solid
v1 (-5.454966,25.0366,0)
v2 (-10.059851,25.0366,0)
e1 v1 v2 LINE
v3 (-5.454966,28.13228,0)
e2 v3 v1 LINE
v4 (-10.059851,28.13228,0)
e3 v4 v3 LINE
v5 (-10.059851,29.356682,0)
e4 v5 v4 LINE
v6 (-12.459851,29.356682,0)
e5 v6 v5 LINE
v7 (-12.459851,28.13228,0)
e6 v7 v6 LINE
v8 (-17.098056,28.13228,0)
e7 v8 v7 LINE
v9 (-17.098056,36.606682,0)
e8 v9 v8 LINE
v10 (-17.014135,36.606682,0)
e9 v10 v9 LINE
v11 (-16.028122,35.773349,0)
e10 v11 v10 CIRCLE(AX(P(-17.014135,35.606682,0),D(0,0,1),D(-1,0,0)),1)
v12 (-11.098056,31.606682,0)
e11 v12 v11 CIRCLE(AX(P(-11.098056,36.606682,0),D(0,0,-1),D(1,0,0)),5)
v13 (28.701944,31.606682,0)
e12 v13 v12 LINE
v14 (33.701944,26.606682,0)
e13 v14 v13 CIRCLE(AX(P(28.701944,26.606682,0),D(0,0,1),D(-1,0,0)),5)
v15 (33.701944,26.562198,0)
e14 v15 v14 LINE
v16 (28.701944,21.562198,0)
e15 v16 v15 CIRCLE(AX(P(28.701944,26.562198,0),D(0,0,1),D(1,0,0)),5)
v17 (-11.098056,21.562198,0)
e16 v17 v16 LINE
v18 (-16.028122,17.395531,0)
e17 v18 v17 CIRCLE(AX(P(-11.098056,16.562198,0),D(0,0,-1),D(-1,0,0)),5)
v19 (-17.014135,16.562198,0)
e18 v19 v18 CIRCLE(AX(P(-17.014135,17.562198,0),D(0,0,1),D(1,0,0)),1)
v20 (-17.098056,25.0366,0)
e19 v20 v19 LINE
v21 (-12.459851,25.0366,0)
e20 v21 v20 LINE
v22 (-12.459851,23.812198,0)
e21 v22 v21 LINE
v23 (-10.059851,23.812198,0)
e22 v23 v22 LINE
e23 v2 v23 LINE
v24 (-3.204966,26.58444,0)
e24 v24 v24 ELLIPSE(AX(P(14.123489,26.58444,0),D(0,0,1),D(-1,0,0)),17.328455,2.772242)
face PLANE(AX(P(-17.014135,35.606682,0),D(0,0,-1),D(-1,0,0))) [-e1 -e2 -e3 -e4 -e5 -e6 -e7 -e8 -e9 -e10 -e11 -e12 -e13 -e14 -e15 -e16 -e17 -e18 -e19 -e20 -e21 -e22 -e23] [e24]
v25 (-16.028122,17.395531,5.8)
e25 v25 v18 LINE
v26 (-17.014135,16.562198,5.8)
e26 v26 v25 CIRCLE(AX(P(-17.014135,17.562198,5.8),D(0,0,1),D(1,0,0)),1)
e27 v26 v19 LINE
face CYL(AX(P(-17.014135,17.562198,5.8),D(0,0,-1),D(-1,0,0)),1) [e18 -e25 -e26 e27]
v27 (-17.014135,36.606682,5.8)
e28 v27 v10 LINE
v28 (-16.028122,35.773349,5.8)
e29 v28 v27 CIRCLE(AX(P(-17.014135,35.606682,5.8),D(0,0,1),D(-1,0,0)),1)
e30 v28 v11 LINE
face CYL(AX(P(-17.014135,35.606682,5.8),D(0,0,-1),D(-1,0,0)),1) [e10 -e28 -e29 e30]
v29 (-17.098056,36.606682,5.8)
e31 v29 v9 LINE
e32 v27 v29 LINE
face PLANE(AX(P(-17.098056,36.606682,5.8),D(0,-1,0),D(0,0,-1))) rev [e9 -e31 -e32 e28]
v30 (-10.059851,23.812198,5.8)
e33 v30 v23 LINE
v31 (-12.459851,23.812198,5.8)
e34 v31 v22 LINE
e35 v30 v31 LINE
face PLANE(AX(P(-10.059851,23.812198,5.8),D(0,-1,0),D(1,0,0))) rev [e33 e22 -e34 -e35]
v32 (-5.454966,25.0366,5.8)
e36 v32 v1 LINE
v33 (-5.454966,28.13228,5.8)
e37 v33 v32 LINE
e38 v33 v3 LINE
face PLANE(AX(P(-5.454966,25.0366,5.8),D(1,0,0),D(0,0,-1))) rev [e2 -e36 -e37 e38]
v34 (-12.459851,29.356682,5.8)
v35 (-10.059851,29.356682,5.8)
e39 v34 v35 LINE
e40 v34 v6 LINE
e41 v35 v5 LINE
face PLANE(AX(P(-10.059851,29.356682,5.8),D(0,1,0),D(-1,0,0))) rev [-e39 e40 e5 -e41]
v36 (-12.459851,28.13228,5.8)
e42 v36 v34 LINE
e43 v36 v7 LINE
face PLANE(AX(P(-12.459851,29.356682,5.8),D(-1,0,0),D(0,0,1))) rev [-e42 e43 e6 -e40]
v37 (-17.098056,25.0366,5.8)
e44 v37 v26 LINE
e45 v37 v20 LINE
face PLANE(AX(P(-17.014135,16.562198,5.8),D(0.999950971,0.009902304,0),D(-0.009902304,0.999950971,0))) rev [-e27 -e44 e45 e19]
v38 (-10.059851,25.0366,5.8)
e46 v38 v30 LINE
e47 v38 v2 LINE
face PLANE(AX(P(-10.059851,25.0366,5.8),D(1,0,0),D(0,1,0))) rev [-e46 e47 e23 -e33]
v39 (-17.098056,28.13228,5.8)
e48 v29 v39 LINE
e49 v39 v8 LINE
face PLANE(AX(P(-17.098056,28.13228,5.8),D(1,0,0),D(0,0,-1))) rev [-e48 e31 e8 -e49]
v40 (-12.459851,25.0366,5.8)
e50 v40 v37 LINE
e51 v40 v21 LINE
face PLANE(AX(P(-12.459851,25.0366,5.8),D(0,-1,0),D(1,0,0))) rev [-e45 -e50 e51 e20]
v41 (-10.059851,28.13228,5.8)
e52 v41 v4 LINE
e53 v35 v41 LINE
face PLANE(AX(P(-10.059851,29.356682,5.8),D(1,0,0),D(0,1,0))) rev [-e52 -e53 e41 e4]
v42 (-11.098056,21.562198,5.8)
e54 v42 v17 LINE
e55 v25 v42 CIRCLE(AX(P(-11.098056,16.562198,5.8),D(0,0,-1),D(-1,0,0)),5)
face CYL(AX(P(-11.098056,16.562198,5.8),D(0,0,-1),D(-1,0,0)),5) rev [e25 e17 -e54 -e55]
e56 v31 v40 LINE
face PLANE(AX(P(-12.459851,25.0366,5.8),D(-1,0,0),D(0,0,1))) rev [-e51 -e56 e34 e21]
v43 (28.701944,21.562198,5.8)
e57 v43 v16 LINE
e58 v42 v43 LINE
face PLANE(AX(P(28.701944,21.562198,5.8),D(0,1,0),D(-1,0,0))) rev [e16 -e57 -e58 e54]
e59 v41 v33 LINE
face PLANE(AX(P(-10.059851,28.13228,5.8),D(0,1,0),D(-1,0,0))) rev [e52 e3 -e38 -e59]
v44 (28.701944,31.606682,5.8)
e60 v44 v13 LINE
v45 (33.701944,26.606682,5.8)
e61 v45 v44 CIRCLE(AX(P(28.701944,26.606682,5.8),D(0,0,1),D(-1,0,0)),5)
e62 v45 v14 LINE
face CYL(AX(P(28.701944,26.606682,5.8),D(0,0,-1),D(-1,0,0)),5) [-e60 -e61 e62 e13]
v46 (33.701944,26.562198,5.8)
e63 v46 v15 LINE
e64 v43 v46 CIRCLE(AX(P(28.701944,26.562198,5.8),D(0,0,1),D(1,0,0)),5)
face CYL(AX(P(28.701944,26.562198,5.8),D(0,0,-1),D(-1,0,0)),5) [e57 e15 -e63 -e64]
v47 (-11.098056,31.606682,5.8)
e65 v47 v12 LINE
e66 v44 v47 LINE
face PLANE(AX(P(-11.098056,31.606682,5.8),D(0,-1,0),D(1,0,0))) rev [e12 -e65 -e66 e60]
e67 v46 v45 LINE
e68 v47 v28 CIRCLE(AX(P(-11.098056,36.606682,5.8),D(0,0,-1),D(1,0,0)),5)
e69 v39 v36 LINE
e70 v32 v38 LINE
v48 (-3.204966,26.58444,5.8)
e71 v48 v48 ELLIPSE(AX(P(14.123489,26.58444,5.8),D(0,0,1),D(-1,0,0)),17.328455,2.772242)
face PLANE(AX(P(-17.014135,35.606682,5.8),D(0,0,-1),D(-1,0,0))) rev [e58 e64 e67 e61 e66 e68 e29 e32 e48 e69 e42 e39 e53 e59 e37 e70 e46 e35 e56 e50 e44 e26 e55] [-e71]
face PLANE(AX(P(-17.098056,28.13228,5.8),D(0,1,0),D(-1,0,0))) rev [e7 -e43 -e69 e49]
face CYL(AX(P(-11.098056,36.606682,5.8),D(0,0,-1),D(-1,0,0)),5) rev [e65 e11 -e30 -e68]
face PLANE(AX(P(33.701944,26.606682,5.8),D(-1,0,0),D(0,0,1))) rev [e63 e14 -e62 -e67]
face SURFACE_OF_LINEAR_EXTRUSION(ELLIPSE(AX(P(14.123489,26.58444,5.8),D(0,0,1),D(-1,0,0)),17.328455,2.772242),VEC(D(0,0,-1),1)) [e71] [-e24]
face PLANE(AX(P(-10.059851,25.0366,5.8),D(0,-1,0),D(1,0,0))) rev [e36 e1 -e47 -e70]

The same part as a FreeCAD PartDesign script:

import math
import FreeCAD as App
import Part
import Sketcher
Q = App.Units.Quantity

doc = App.newDocument("Part")
body = doc.addObject("PartDesign::Body", "Body")

sketch1 = doc.addObject("Sketcher::SketchObject", "Sketch")
body.addObject(sketch1)
sketch1.AttachmentSupport = (doc.XY_Plane, [""])
sketch1.MapMode = "FlatFace"
sketch1.addGeometry([
    Part.LineSegment(App.Vector(-12.459851, 29.356682, 0), App.Vector(-10.059851, 29.356682, 0)),
    Part.LineSegment(App.Vector(-10.059851, 29.356682, 0), App.Vector(-10.059851, 28.13228, 0)),
    Part.LineSegment(App.Vector(-10.059851, 28.13228, 0), App.Vector(-5.454966, 28.13228, 0)),
    Part.LineSegment(App.Vector(-5.454966, 28.13228, 0), App.Vector(-5.454966, 25.0366, 0)),
    Part.LineSegment(App.Vector(-5.454966, 25.0366, 0), App.Vector(-10.059851, 25.0366, 0)),
    Part.LineSegment(App.Vector(-10.059851, 25.0366, 0), App.Vector(-10.059851, 23.812198, 0)),
    Part.LineSegment(App.Vector(-10.059851, 23.812198, 0), App.Vector(-12.459851, 23.812198, 0)),
    Part.LineSegment(App.Vector(-12.459851, 23.812198, 0), App.Vector(-12.459851, 25.0366, 0)),
    Part.LineSegment(App.Vector(-12.459851, 25.0366, 0), App.Vector(-17.098056, 25.0366, 0)),
    Part.LineSegment(App.Vector(-17.098056, 25.0366, 0), App.Vector(-17.014135, 16.562198, 0)),
    Part.ArcOfCircle(Part.Circle(App.Vector(-17.014135, 17.562198, 0), App.Vector(0, 0, 1), 1), math.radians(-90), math.radians(-9.594068)),
    Part.ArcOfCircle(Part.Circle(App.Vector(-11.098056, 16.562198, 0), App.Vector(0, 0, 1), 5), math.radians(90), math.radians(170.405932)),
    Part.LineSegment(App.Vector(-11.098056, 21.562198, 0), App.Vector(28.701944, 21.562198, 0)),
    Part.ArcOfCircle(Part.Circle(App.Vector(28.701944, 26.562198, 0), App.Vector(0, 0, 1), 5), math.radians(-90), math.radians(0)),
    Part.LineSegment(App.Vector(33.701944, 26.562198, 0), App.Vector(33.701944, 26.606682, 0)),
    Part.ArcOfCircle(Part.Circle(App.Vector(28.701944, 26.606682, 0), App.Vector(0, 0, 1), 5), math.radians(0), math.radians(90)),
    Part.LineSegment(App.Vector(28.701944, 31.606682, 0), App.Vector(-11.098056, 31.606682, 0)),
    Part.ArcOfCircle(Part.Circle(App.Vector(-11.098056, 36.606682, 0), App.Vector(0, 0, 1), 5), math.radians(-170.405932), math.radians(-90)),
    Part.ArcOfCircle(Part.Circle(App.Vector(-17.014135, 35.606682, 0), App.Vector(0, 0, 1), 1), math.radians(9.594068), math.radians(90)),
    Part.LineSegment(App.Vector(-17.014135, 36.606682, 0), App.Vector(-17.098056, 36.606682, 0)),
    Part.LineSegment(App.Vector(-17.098056, 36.606682, 0), App.Vector(-17.098056, 28.13228, 0)),
    Part.LineSegment(App.Vector(-17.098056, 28.13228, 0), App.Vector(-12.459851, 28.13228, 0)),
    Part.LineSegment(App.Vector(-12.459851, 28.13228, 0), App.Vector(-12.459851, 29.356682, 0)),
    Part.Ellipse(App.Vector(-3.204966, 26.58444, 0), App.Vector(14.123489, 23.812198, 0), App.Vector(14.123489, 26.58444, 0)),
], False)
sketch1.addConstraint([
    Sketcher.Constraint("Block", 23),
    Sketcher.Constraint("Coincident", 0, 2, 1, 1),
    Sketcher.Constraint("Coincident", 1, 2, 2, 1),
    Sketcher.Constraint("Coincident", 2, 2, 3, 1),
    Sketcher.Constraint("Coincident", 3, 2, 4, 1),
    Sketcher.Constraint("Coincident", 4, 2, 5, 1),
    Sketcher.Constraint("Coincident", 5, 2, 6, 1),
    Sketcher.Constraint("Coincident", 6, 2, 7, 1),
    Sketcher.Constraint("Coincident", 7, 2, 8, 1),
    Sketcher.Constraint("Coincident", 8, 2, 9, 1),
    Sketcher.Constraint("Coincident", 9, 2, 10, 1),
    Sketcher.Constraint("Tangent", 10, 2, 11, 2),
    Sketcher.Constraint("Tangent", 11, 1, 12, 1),
    Sketcher.Constraint("Tangent", 12, 2, 13, 1),
    Sketcher.Constraint("Tangent", 13, 2, 14, 1),
    Sketcher.Constraint("Tangent", 14, 2, 15, 1),
    Sketcher.Constraint("Tangent", 15, 2, 16, 1),
    Sketcher.Constraint("Tangent", 16, 2, 17, 2),
    Sketcher.Constraint("Tangent", 17, 1, 18, 1),
    Sketcher.Constraint("Tangent", 18, 2, 19, 1),
    Sketcher.Constraint("Coincident", 19, 2, 20, 1),
    Sketcher.Constraint("Coincident", 20, 2, 21, 1),
    Sketcher.Constraint("Coincident", 21, 2, 22, 1),
    Sketcher.Constraint("Coincident", 22, 2, 0, 1),
    Sketcher.Constraint("Horizontal", 0),
    Sketcher.Constraint("Vertical", 1),
    Sketcher.Constraint("Horizontal", 2),
    Sketcher.Constraint("Vertical", 3),
    Sketcher.Constraint("Horizontal", 4),
    Sketcher.Constraint("Vertical", 5),
    Sketcher.Constraint("Horizontal", 6),
    Sketcher.Constraint("Vertical", 7),
    Sketcher.Constraint("Horizontal", 8),
    Sketcher.Constraint("Horizontal", 12),
    Sketcher.Constraint("Vertical", 14),
    Sketcher.Constraint("Horizontal", 16),
    Sketcher.Constraint("Horizontal", 19),
    Sketcher.Constraint("Vertical", 20),
    Sketcher.Constraint("Horizontal", 21),
    Sketcher.Constraint("Vertical", 22),
    Sketcher.Constraint("Equal", 11, 13),
    Sketcher.Constraint("Equal", 13, 15),
    Sketcher.Constraint("Equal", 15, 17),
    Sketcher.Constraint("Equal", 10, 18),
    Sketcher.Constraint("Horizontal", 4, 2, 7, 2),
    Sketcher.Constraint("Horizontal", 11, 3, 9, 2),
    Sketcher.Constraint("Horizontal", 17, 3, 18, 2),
    Sketcher.Constraint("Horizontal", 2, 2, 20, 2),
    Sketcher.Constraint("Vertical", 11, 3, 17, 3),
    Sketcher.Constraint("Vertical", 1, 2, 4, 2),
    Sketcher.Constraint("Vertical", 18, 3, 9, 2),
    Sketcher.Constraint("Vertical", 8, 2, 19, 2),
    Sketcher.Constraint("Vertical", 7, 2, 21, 2),
    Sketcher.Constraint("Equal", 1, 5),
    Sketcher.Constraint("Radius", 10, Q("1 mm")),
    Sketcher.Constraint("Radius", 11, Q("5 mm")),
    Sketcher.Constraint("DistanceX", 0, 1, 0, 2, Q("2.4 mm")),
    Sketcher.Constraint("DistanceX", 12, 1, 12, 2, Q("39.8 mm")),
    Sketcher.Constraint("DistanceX", 19, 2, 17, 3, Q("6 mm")),
    Sketcher.Constraint("DistanceY", 0, 2, 17, 3, Q("7.25 mm")),
    Sketcher.Constraint("DistanceY", 9, 2, 6, 2, Q("7.25 mm")),
    Sketcher.Constraint("DistanceY", 3, 2, 3, 1, Q("3.09568 mm")),
    Sketcher.Constraint("DistanceY", -1, 1, 10, 3, Q("17.562198 mm")),
    Sketcher.Constraint("DistanceY", -1, 1, 3, 2, Q("25.0366 mm")),
    Sketcher.Constraint("DistanceX", 2, 1, 2, 2, Q("4.604885 mm")),
    Sketcher.Constraint("DistanceX", 8, 2, 8, 1, Q("4.638205 mm")),
    Sketcher.Constraint("DistanceX", 0, 2, -1, 1, Q("10.059851 mm")),
])
pad1 = doc.addObject("PartDesign::Pad", "Pad")
body.addObject(pad1)
pad1.Profile = sketch1
pad1.Length = 5.8

doc.recompute()
